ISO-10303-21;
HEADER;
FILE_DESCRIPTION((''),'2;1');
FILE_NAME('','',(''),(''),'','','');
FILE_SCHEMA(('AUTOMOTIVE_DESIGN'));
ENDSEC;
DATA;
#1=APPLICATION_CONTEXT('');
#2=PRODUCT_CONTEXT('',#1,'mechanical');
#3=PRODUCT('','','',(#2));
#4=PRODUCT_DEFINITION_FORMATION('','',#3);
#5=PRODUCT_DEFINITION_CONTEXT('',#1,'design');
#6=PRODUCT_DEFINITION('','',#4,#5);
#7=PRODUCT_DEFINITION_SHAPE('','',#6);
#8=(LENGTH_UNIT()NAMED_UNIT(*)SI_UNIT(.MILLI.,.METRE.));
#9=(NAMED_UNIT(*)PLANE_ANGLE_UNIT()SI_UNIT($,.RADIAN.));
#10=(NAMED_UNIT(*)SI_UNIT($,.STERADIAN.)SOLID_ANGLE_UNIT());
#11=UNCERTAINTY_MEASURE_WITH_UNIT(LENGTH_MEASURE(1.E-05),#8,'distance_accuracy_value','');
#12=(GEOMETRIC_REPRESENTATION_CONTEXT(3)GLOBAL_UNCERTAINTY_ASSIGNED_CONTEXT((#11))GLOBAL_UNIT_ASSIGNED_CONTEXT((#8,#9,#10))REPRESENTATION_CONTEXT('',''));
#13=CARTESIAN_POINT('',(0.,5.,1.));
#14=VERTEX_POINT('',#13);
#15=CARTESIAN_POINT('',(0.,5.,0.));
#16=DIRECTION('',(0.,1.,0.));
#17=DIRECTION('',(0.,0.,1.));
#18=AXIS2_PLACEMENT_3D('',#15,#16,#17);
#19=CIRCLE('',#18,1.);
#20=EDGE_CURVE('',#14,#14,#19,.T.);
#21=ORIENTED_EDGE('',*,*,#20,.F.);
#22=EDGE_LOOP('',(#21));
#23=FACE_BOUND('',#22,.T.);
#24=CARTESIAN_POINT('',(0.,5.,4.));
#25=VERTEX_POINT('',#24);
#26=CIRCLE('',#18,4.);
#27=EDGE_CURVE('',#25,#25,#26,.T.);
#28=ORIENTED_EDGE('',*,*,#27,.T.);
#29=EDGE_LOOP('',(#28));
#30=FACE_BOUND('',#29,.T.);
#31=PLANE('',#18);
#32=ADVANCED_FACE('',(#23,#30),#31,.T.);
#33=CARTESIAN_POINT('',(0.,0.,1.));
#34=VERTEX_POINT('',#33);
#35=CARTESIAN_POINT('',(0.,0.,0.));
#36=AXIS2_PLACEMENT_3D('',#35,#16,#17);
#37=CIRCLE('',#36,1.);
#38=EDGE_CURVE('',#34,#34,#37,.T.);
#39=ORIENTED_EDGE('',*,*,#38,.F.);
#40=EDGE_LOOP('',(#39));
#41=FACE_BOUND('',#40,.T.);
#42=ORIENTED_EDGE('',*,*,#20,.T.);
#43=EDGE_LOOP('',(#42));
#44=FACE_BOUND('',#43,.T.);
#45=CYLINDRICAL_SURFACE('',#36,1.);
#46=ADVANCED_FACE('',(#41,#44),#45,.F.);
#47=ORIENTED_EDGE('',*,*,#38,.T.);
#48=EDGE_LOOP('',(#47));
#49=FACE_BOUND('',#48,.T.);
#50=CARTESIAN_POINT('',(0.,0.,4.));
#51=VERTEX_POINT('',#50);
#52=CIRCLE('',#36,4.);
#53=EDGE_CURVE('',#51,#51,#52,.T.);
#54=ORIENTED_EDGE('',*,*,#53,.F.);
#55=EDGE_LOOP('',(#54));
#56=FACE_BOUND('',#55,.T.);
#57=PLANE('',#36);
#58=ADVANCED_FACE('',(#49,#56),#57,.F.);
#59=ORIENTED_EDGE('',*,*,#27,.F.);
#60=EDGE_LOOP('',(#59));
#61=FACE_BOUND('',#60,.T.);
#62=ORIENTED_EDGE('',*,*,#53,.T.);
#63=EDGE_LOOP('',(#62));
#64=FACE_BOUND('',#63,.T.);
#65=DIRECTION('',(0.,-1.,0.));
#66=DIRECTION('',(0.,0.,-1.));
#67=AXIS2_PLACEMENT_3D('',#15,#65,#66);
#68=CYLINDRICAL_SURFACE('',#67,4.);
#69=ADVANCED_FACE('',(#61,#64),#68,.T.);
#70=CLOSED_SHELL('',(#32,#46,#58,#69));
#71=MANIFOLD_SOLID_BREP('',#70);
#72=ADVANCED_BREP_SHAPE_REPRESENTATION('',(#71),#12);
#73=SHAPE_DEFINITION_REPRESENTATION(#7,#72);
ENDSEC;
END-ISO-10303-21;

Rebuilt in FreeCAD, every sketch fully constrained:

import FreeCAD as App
import Part
import Sketcher

doc = App.newDocument("Part")
body = doc.addObject("PartDesign::Body", "Body")

sketch1 = body.newObject("Sketcher::SketchObject", "Sketch")
sketch1.AttachmentSupport = (doc.getObject("XZ_Plane"), [""])
sketch1.MapMode = "FlatFace"
sketch1.addGeometry(Part.Circle(App.Vector(0, 0, 0), App.Vector(0, 0, 1), 4), False)
sketch1.addConstraint(Sketcher.Constraint("Coincident", 0, 3, -1, 1))
sketch1.addConstraint(Sketcher.Constraint("Diameter", 0, 8.0))
pad1 = body.newObject("PartDesign::Pad", "Pad")
pad1.Profile = sketch1
pad1.Length = 5
pad1.Reversed = True

sketch2 = body.newObject("Sketcher::SketchObject", "Sketch001")
sketch2.AttachmentSupport = (doc.getObject("XZ_Plane"), [""])
sketch2.MapMode = "FlatFace"
sketch2.AttachmentOffset = App.Placement(App.Vector(0, 0, -5), App.Rotation())
sketch2.addGeometry(Part.Circle(App.Vector(0, 0, 0), App.Vector(0, 0, 1), 1), False)
sketch2.addConstraint(Sketcher.Constraint("Coincident", 0, 3, -1, 1))
sketch2.addConstraint(Sketcher.Constraint("Diameter", 0, 2.0))
pocket1 = body.newObject("PartDesign::Pocket", "Pocket")
pocket1.Profile = sketch2
pocket1.Length = 5
pocket1.Reversed = True

doc.recompute()
